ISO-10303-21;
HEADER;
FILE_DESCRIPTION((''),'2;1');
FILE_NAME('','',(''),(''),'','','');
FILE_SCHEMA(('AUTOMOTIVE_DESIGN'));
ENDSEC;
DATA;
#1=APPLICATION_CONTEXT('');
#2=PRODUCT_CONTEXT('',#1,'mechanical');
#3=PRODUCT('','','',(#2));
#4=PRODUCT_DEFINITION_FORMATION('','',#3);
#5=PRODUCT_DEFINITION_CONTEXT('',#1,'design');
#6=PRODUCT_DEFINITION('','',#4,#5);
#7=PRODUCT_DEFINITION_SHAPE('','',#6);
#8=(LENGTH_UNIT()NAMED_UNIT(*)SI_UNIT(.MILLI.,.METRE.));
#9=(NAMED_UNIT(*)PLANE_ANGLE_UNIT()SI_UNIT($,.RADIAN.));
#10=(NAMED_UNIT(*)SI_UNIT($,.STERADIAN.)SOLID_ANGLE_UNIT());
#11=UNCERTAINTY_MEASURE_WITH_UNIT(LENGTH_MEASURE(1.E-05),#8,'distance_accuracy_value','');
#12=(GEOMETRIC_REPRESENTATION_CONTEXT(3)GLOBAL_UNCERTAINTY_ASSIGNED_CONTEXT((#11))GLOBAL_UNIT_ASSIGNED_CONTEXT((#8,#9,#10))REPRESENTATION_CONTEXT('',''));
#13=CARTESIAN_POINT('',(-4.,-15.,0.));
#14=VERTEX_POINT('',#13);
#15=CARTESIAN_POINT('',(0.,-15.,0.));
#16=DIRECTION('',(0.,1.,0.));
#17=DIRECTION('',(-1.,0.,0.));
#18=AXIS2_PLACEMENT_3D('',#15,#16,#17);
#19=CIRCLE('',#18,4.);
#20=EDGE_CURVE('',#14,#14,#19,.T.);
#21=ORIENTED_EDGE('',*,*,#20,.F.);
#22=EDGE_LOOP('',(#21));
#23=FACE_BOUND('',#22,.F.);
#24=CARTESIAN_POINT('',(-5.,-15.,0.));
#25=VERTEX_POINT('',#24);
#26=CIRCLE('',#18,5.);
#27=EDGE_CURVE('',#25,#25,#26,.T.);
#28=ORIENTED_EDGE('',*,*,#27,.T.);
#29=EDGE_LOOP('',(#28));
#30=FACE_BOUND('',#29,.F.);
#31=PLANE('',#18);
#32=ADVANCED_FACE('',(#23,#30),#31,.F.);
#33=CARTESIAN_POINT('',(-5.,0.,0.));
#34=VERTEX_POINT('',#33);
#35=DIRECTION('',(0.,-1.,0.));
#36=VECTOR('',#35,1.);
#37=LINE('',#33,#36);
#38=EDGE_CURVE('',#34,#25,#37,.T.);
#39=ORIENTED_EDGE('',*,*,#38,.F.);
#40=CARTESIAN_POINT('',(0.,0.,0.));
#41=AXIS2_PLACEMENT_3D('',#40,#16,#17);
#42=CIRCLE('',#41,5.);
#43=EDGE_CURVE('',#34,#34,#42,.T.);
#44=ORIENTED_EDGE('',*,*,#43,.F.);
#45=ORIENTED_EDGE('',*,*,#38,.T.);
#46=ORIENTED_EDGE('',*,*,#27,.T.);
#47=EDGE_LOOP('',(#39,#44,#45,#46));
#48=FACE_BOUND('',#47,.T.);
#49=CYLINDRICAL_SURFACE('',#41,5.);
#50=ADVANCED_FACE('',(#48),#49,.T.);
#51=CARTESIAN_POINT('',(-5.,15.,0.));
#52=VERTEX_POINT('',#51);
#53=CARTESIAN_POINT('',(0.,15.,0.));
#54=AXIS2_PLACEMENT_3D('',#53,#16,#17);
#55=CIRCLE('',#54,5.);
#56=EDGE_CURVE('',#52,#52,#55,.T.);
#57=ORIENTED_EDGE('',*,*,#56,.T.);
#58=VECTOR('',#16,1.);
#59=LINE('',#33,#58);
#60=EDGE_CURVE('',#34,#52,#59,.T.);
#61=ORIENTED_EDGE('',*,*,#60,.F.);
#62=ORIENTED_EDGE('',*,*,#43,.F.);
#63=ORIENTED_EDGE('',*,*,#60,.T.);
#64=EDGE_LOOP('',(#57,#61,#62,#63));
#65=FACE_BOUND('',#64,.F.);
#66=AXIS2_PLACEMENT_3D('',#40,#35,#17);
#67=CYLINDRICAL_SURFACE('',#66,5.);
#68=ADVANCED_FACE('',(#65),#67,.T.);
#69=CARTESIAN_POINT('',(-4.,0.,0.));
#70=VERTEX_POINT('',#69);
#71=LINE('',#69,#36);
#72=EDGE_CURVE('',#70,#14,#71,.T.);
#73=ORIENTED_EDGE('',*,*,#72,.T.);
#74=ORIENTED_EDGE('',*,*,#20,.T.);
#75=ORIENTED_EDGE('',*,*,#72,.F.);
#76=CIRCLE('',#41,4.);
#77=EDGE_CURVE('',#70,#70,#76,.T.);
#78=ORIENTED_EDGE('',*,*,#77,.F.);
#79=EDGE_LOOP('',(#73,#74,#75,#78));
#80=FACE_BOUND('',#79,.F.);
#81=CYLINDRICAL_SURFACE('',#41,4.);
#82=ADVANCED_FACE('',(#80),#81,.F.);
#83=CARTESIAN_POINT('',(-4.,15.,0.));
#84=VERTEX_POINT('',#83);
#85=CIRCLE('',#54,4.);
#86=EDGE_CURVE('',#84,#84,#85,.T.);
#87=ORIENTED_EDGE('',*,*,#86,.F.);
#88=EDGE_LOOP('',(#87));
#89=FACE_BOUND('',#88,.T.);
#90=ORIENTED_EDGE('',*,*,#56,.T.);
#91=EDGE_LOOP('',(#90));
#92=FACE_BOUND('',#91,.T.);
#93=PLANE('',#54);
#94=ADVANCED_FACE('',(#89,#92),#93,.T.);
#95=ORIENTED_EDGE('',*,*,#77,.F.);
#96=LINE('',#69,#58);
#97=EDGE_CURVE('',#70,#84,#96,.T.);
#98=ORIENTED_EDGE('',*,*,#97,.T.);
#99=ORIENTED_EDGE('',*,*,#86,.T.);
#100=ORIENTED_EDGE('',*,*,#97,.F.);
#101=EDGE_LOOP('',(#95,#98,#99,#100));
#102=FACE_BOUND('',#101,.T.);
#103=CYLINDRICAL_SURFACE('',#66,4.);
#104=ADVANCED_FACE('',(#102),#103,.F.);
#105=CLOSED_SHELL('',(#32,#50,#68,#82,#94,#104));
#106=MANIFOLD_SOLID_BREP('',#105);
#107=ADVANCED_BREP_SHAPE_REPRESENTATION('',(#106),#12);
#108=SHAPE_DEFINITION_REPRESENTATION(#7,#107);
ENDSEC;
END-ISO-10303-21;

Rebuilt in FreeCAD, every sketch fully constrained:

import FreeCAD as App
import Part
import Sketcher

doc = App.newDocument("Part")
params = doc.addObject("Spreadsheet::Sheet", "Params")
for row, (alias, value) in enumerate([
    ("sketch1_diameter", "10 mm"),
    ("sketch1_diameter2", "8 mm"),
    ("pad1_length", "30 mm"),
], start=1):
    params.set(f"A{row}", alias)
    params.set(f"B{row}", "=" + value)
    params.setAlias(f"B{row}", alias)

body = doc.addObject("PartDesign::Body", "Body")

# Sketch on XZ plane
sketch1 = body.newObject("Sketcher::SketchObject", "Sketch")
sketch1.AttachmentSupport = (doc.getObject("XZ_Plane"), [""])
sketch1.MapMode = "FlatFace"
sketch1.addGeometry([
    Part.Circle(App.Vector(0, 0, 0), App.Vector(0, 0, 1), 5),
    Part.Circle(App.Vector(0, 0, 0), App.Vector(0, 0, 1), 4),
], False)
sketch1.addConstraint([
    Sketcher.Constraint("Coincident", 0, 3, -1, 1),
    Sketcher.Constraint("Coincident", 1, 3, -1, 1),
    Sketcher.Constraint("Diameter", 0, 10.0),
    Sketcher.Constraint("Diameter", 1, 8.0),
])
sketch1.setExpression("Constraints[2]", "Params.sketch1_diameter")
sketch1.setExpression("Constraints[3]", "Params.sketch1_diameter2")
pad1 = body.newObject("PartDesign::Pad", "Pad")
pad1.Profile = sketch1
pad1.setExpression("Length", "Params.pad1_length")
pad1.Midplane = True

doc.recompute()
